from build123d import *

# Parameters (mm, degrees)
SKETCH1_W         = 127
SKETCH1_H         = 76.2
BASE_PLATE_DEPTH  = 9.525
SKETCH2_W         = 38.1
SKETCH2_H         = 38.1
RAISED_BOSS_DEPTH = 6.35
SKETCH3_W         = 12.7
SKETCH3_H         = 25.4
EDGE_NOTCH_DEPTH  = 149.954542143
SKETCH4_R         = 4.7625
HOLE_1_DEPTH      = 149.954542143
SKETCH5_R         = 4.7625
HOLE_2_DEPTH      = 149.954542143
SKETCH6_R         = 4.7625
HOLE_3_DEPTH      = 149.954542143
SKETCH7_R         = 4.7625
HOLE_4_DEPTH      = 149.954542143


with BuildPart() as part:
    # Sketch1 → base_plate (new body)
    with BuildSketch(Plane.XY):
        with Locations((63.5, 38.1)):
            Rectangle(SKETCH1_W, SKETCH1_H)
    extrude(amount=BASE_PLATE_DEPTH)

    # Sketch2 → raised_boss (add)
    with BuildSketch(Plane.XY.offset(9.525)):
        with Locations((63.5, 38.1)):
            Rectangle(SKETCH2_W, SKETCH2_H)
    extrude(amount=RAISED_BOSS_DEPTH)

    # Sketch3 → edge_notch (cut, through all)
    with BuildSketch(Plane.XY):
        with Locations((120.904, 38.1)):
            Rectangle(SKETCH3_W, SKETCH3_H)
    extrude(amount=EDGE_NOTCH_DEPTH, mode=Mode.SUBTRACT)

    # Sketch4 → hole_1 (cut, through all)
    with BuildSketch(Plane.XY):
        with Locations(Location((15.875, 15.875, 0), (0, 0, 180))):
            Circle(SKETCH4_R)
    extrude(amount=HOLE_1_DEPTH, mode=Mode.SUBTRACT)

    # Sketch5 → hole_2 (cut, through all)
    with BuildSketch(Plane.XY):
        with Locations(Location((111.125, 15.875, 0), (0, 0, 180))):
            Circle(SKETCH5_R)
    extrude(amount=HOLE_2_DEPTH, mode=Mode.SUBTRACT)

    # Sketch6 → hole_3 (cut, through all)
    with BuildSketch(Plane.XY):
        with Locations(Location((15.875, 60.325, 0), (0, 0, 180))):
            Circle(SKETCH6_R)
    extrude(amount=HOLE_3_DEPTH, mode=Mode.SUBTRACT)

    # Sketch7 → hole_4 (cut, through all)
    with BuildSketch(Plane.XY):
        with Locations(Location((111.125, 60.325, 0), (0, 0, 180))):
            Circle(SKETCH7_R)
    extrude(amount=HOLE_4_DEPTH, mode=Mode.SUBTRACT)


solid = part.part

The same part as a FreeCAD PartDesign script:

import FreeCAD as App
import Part
import Sketcher
from FreeCAD import Vector
Q = App.Units.Quantity

doc = App.newDocument("Part")
params = doc.addObject("Spreadsheet::Sheet", "Params")
for row, (alias, value) in enumerate([
    ("sketch1_width", "5 in"),
    ("sketch1_height", "3 in"),
    ("pad1_length", "0.375 in"),
    ("sketch2_width", "1.5 in"),
    ("pad2_length", "0.25 in"),
    ("sketch3_height", "1 in"),
    ("sketch3_width", "0.5 in"),
    ("sketch4_diameter", "0.375 in"),
    ("sketch5_diameter", "0.375 in"),
    ("sketch6_diameter", "0.375 in"),
    ("sketch7_diameter", "0.375 in"),
], start=1):
    params.set(f"A{row}", alias)
    params.set(f"B{row}", "=" + value)
    params.setAlias(f"B{row}", alias)

body = doc.addObject("PartDesign::Body", "Body")

sketch1 = body.newObject("Sketcher::SketchObject", "Sketch")
sketch1.AttachmentSupport = (doc.getObject("XY_Plane"), [""])
sketch1.MapMode = "FlatFace"
sketch1.addGeometry([
    Part.LineSegment(Vector(0, 76, 0), Vector(0, 0, 0)),
    Part.LineSegment(Vector(0, 0, 0), Vector(127, 0, 0)),
    Part.LineSegment(Vector(127, 0, 0), Vector(127, 76, 0)),
    Part.LineSegment(Vector(127, 76, 0), Vector(0, 76, 0)),
], False)
sketch1.addConstraint([
    Sketcher.Constraint("Coincident", 0, 2, 1, 1),
    Sketcher.Constraint("Coincident", 1, 2, 2, 1),
    Sketcher.Constraint("Coincident", 2, 2, 3, 1),
    Sketcher.Constraint("Coincident", 3, 2, 0, 1),
    Sketcher.Constraint("Vertical", 0),
    Sketcher.Constraint("Horizontal", 1),
    Sketcher.Constraint("Vertical", 2),
    Sketcher.Constraint("Horizontal", 3),
    Sketcher.Constraint("Coincident", 0, 2, -1, 1),
    Sketcher.Constraint("DistanceX", 1, 1, 1, 2, Q("5 in")),
    Sketcher.Constraint("DistanceY", 0, 2, 0, 1, Q("3 in")),
])
sketch1.setExpression("Constraints[9]", "Params.sketch1_width")
sketch1.setExpression("Constraints[10]", "Params.sketch1_height")
pad1 = body.newObject("PartDesign::Pad", "Pad")
pad1.Profile = sketch1
pad1.setExpression("Length", "Params.pad1_length")

sketch2 = body.newObject("Sketcher::SketchObject", "Sketch001")
sketch2.AttachmentSupport = (doc.getObject("XY_Plane"), [""])
sketch2.MapMode = "FlatFace"
sketch2.AttachmentOffset = App.Placement(Vector(0, 0, 0.375 * 25.4), App.Rotation())
sketch2.addGeometry([
    Part.LineSegment(Vector(44, 57, 0), Vector(44, 19, 0)),
    Part.LineSegment(Vector(44, 19, 0), Vector(83, 19, 0)),
    Part.LineSegment(Vector(83, 19, 0), Vector(83, 57, 0)),
    Part.LineSegment(Vector(83, 57, 0), Vector(44, 57, 0)),
], False)
sketch2.addConstraint([
    Sketcher.Constraint("Coincident", 0, 2, 1, 1),
    Sketcher.Constraint("Coincident", 1, 2, 2, 1),
    Sketcher.Constraint("Coincident", 2, 2, 3, 1),
    Sketcher.Constraint("Coincident", 3, 2, 0, 1),
    Sketcher.Constraint("Vertical", 0),
    Sketcher.Constraint("Horizontal", 1),
    Sketcher.Constraint("Vertical", 2),
    Sketcher.Constraint("Horizontal", 3),
    Sketcher.Constraint("Equal", 3, 0),
    Sketcher.Constraint("DistanceX", 1, 1, 1, 2, Q("1.5 in")),
    Sketcher.Constraint("DistanceX", -1, 1, 0, 2, Q("1.75 in")),
    Sketcher.Constraint("DistanceY", -1, 1, 0, 2, Q("0.75 in")),
])
sketch2.setExpression("Constraints[9]", "Params.sketch2_width")
pad2 = body.newObject("PartDesign::Pad", "Pad001")
pad2.Profile = sketch2
pad2.setExpression("Length", "Params.pad2_length")

sketch3 = body.newObject("Sketcher::SketchObject", "Sketch002")
sketch3.AttachmentSupport = (doc.getObject("XY_Plane"), [""])
sketch3.MapMode = "FlatFace"
sketch3.addGeometry([
    Part.LineSegment(Vector(115, 51, 0), Vector(115, 25, 0)),
    Part.LineSegment(Vector(115, 25, 0), Vector(127, 25, 0)),
    Part.LineSegment(Vector(127, 25, 0), Vector(127, 51, 0)),
    Part.LineSegment(Vector(127, 51, 0), Vector(115, 51, 0)),
], False)
sketch3.addConstraint([
    Sketcher.Constraint("Coincident", 0, 2, 1, 1),
    Sketcher.Constraint("Coincident", 1, 2, 2, 1),
    Sketcher.Constraint("Coincident", 2, 2, 3, 1),
    Sketcher.Constraint("Coincident", 3, 2, 0, 1),
    Sketcher.Constraint("Vertical", 0),
    Sketcher.Constraint("Horizontal", 1),
    Sketcher.Constraint("Vertical", 2),
    Sketcher.Constraint("Horizontal", 3),
    Sketcher.Constraint("DistanceY", 0, 2, 0, 1, Q("1 in")),
    Sketcher.Constraint("DistanceX", 1, 1, 1, 2, Q("0.5 in")),
    Sketcher.Constraint("DistanceY", -1, 1, 0, 2, Q("1 in")),
    Sketcher.Constraint("DistanceX", -1, 1, 0, 2, Q("4.51 in")),
])
sketch3.setExpression("Constraints[8]", "Params.sketch3_height")
sketch3.setExpression("Constraints[9]", "Params.sketch3_width")
pocket1 = body.newObject("PartDesign::Pocket", "Pocket")
pocket1.Profile = sketch3
pocket1.Type = "ThroughAll"
pocket1.Reversed = True

sketch4 = body.newObject("Sketcher::SketchObject", "Sketch003")
sketch4.AttachmentSupport = (doc.getObject("XY_Plane"), [""])
sketch4.MapMode = "FlatFace"
sketch4.addGeometry(Part.Circle(Vector(15.9, 15.9, 0), Vector(0, 0, 1), 4.8), False)
sketch4.addConstraint([
    Sketcher.Constraint("Diameter", 0, Q("0.375 in")),
    Sketcher.Constraint("DistanceX", -1, 1, 0, 3, Q("0.625 in")),
    Sketcher.Constraint("DistanceY", -1, 1, 0, 3, Q("0.625 in")),
])
sketch4.setExpression("Constraints[0]", "Params.sketch4_diameter")
pocket2 = body.newObject("PartDesign::Pocket", "Pocket001")
pocket2.Profile = sketch4
pocket2.Type = "ThroughAll"
pocket2.Reversed = True

sketch5 = body.newObject("Sketcher::SketchObject", "Sketch004")
sketch5.AttachmentSupport = (doc.getObject("XY_Plane"), [""])
sketch5.MapMode = "FlatFace"
sketch5.addGeometry(Part.Circle(Vector(111.1, 15.9, 0), Vector(0, 0, 1), 4.8), False)
sketch5.addConstraint([
    Sketcher.Constraint("Diameter", 0, Q("0.375 in")),
    Sketcher.Constraint("DistanceX", -1, 1, 0, 3, Q("4.375 in")),
    Sketcher.Constraint("DistanceY", -1, 1, 0, 3, Q("0.625 in")),
])
sketch5.setExpression("Constraints[0]", "Params.sketch5_diameter")
pocket3 = body.newObject("PartDesign::Pocket", "Pocket002")
pocket3.Profile = sketch5
pocket3.Type = "ThroughAll"
pocket3.Reversed = True

sketch6 = body.newObject("Sketcher::SketchObject", "Sketch005")
sketch6.AttachmentSupport = (doc.getObject("XY_Plane"), [""])
sketch6.MapMode = "FlatFace"
sketch6.addGeometry(Part.Circle(Vector(15.9, 60.3, 0), Vector(0, 0, 1), 4.8), False)
sketch6.addConstraint([
    Sketcher.Constraint("Diameter", 0, Q("0.375 in")),
    Sketcher.Constraint("DistanceX", -1, 1, 0, 3, Q("0.625 in")),
    Sketcher.Constraint("DistanceY", -1, 1, 0, 3, Q("2.375 in")),
])
sketch6.setExpression("Constraints[0]", "Params.sketch6_diameter")
pocket4 = body.newObject("PartDesign::Pocket", "Pocket003")
pocket4.Profile = sketch6
pocket4.Type = "ThroughAll"
pocket4.Reversed = True

sketch7 = body.newObject("Sketcher::SketchObject", "Sketch006")
sketch7.AttachmentSupport = (doc.getObject("XY_Plane"), [""])
sketch7.MapMode = "FlatFace"
sketch7.addGeometry(Part.Circle(Vector(111.1, 60.3, 0), Vector(0, 0, 1), 4.8), False)
sketch7.addConstraint([
    Sketcher.Constraint("Diameter", 0, Q("0.375 in")),
    Sketcher.Constraint("DistanceX", -1, 1, 0, 3, Q("4.375 in")),
    Sketcher.Constraint("DistanceY", -1, 1, 0, 3, Q("2.375 in")),
])
sketch7.setExpression("Constraints[0]", "Params.sketch7_diameter")
pocket5 = body.newObject("PartDesign::Pocket", "Pocket004")
pocket5.Profile = sketch7
pocket5.Type = "ThroughAll"
pocket5.Reversed = True

doc.recompute()
